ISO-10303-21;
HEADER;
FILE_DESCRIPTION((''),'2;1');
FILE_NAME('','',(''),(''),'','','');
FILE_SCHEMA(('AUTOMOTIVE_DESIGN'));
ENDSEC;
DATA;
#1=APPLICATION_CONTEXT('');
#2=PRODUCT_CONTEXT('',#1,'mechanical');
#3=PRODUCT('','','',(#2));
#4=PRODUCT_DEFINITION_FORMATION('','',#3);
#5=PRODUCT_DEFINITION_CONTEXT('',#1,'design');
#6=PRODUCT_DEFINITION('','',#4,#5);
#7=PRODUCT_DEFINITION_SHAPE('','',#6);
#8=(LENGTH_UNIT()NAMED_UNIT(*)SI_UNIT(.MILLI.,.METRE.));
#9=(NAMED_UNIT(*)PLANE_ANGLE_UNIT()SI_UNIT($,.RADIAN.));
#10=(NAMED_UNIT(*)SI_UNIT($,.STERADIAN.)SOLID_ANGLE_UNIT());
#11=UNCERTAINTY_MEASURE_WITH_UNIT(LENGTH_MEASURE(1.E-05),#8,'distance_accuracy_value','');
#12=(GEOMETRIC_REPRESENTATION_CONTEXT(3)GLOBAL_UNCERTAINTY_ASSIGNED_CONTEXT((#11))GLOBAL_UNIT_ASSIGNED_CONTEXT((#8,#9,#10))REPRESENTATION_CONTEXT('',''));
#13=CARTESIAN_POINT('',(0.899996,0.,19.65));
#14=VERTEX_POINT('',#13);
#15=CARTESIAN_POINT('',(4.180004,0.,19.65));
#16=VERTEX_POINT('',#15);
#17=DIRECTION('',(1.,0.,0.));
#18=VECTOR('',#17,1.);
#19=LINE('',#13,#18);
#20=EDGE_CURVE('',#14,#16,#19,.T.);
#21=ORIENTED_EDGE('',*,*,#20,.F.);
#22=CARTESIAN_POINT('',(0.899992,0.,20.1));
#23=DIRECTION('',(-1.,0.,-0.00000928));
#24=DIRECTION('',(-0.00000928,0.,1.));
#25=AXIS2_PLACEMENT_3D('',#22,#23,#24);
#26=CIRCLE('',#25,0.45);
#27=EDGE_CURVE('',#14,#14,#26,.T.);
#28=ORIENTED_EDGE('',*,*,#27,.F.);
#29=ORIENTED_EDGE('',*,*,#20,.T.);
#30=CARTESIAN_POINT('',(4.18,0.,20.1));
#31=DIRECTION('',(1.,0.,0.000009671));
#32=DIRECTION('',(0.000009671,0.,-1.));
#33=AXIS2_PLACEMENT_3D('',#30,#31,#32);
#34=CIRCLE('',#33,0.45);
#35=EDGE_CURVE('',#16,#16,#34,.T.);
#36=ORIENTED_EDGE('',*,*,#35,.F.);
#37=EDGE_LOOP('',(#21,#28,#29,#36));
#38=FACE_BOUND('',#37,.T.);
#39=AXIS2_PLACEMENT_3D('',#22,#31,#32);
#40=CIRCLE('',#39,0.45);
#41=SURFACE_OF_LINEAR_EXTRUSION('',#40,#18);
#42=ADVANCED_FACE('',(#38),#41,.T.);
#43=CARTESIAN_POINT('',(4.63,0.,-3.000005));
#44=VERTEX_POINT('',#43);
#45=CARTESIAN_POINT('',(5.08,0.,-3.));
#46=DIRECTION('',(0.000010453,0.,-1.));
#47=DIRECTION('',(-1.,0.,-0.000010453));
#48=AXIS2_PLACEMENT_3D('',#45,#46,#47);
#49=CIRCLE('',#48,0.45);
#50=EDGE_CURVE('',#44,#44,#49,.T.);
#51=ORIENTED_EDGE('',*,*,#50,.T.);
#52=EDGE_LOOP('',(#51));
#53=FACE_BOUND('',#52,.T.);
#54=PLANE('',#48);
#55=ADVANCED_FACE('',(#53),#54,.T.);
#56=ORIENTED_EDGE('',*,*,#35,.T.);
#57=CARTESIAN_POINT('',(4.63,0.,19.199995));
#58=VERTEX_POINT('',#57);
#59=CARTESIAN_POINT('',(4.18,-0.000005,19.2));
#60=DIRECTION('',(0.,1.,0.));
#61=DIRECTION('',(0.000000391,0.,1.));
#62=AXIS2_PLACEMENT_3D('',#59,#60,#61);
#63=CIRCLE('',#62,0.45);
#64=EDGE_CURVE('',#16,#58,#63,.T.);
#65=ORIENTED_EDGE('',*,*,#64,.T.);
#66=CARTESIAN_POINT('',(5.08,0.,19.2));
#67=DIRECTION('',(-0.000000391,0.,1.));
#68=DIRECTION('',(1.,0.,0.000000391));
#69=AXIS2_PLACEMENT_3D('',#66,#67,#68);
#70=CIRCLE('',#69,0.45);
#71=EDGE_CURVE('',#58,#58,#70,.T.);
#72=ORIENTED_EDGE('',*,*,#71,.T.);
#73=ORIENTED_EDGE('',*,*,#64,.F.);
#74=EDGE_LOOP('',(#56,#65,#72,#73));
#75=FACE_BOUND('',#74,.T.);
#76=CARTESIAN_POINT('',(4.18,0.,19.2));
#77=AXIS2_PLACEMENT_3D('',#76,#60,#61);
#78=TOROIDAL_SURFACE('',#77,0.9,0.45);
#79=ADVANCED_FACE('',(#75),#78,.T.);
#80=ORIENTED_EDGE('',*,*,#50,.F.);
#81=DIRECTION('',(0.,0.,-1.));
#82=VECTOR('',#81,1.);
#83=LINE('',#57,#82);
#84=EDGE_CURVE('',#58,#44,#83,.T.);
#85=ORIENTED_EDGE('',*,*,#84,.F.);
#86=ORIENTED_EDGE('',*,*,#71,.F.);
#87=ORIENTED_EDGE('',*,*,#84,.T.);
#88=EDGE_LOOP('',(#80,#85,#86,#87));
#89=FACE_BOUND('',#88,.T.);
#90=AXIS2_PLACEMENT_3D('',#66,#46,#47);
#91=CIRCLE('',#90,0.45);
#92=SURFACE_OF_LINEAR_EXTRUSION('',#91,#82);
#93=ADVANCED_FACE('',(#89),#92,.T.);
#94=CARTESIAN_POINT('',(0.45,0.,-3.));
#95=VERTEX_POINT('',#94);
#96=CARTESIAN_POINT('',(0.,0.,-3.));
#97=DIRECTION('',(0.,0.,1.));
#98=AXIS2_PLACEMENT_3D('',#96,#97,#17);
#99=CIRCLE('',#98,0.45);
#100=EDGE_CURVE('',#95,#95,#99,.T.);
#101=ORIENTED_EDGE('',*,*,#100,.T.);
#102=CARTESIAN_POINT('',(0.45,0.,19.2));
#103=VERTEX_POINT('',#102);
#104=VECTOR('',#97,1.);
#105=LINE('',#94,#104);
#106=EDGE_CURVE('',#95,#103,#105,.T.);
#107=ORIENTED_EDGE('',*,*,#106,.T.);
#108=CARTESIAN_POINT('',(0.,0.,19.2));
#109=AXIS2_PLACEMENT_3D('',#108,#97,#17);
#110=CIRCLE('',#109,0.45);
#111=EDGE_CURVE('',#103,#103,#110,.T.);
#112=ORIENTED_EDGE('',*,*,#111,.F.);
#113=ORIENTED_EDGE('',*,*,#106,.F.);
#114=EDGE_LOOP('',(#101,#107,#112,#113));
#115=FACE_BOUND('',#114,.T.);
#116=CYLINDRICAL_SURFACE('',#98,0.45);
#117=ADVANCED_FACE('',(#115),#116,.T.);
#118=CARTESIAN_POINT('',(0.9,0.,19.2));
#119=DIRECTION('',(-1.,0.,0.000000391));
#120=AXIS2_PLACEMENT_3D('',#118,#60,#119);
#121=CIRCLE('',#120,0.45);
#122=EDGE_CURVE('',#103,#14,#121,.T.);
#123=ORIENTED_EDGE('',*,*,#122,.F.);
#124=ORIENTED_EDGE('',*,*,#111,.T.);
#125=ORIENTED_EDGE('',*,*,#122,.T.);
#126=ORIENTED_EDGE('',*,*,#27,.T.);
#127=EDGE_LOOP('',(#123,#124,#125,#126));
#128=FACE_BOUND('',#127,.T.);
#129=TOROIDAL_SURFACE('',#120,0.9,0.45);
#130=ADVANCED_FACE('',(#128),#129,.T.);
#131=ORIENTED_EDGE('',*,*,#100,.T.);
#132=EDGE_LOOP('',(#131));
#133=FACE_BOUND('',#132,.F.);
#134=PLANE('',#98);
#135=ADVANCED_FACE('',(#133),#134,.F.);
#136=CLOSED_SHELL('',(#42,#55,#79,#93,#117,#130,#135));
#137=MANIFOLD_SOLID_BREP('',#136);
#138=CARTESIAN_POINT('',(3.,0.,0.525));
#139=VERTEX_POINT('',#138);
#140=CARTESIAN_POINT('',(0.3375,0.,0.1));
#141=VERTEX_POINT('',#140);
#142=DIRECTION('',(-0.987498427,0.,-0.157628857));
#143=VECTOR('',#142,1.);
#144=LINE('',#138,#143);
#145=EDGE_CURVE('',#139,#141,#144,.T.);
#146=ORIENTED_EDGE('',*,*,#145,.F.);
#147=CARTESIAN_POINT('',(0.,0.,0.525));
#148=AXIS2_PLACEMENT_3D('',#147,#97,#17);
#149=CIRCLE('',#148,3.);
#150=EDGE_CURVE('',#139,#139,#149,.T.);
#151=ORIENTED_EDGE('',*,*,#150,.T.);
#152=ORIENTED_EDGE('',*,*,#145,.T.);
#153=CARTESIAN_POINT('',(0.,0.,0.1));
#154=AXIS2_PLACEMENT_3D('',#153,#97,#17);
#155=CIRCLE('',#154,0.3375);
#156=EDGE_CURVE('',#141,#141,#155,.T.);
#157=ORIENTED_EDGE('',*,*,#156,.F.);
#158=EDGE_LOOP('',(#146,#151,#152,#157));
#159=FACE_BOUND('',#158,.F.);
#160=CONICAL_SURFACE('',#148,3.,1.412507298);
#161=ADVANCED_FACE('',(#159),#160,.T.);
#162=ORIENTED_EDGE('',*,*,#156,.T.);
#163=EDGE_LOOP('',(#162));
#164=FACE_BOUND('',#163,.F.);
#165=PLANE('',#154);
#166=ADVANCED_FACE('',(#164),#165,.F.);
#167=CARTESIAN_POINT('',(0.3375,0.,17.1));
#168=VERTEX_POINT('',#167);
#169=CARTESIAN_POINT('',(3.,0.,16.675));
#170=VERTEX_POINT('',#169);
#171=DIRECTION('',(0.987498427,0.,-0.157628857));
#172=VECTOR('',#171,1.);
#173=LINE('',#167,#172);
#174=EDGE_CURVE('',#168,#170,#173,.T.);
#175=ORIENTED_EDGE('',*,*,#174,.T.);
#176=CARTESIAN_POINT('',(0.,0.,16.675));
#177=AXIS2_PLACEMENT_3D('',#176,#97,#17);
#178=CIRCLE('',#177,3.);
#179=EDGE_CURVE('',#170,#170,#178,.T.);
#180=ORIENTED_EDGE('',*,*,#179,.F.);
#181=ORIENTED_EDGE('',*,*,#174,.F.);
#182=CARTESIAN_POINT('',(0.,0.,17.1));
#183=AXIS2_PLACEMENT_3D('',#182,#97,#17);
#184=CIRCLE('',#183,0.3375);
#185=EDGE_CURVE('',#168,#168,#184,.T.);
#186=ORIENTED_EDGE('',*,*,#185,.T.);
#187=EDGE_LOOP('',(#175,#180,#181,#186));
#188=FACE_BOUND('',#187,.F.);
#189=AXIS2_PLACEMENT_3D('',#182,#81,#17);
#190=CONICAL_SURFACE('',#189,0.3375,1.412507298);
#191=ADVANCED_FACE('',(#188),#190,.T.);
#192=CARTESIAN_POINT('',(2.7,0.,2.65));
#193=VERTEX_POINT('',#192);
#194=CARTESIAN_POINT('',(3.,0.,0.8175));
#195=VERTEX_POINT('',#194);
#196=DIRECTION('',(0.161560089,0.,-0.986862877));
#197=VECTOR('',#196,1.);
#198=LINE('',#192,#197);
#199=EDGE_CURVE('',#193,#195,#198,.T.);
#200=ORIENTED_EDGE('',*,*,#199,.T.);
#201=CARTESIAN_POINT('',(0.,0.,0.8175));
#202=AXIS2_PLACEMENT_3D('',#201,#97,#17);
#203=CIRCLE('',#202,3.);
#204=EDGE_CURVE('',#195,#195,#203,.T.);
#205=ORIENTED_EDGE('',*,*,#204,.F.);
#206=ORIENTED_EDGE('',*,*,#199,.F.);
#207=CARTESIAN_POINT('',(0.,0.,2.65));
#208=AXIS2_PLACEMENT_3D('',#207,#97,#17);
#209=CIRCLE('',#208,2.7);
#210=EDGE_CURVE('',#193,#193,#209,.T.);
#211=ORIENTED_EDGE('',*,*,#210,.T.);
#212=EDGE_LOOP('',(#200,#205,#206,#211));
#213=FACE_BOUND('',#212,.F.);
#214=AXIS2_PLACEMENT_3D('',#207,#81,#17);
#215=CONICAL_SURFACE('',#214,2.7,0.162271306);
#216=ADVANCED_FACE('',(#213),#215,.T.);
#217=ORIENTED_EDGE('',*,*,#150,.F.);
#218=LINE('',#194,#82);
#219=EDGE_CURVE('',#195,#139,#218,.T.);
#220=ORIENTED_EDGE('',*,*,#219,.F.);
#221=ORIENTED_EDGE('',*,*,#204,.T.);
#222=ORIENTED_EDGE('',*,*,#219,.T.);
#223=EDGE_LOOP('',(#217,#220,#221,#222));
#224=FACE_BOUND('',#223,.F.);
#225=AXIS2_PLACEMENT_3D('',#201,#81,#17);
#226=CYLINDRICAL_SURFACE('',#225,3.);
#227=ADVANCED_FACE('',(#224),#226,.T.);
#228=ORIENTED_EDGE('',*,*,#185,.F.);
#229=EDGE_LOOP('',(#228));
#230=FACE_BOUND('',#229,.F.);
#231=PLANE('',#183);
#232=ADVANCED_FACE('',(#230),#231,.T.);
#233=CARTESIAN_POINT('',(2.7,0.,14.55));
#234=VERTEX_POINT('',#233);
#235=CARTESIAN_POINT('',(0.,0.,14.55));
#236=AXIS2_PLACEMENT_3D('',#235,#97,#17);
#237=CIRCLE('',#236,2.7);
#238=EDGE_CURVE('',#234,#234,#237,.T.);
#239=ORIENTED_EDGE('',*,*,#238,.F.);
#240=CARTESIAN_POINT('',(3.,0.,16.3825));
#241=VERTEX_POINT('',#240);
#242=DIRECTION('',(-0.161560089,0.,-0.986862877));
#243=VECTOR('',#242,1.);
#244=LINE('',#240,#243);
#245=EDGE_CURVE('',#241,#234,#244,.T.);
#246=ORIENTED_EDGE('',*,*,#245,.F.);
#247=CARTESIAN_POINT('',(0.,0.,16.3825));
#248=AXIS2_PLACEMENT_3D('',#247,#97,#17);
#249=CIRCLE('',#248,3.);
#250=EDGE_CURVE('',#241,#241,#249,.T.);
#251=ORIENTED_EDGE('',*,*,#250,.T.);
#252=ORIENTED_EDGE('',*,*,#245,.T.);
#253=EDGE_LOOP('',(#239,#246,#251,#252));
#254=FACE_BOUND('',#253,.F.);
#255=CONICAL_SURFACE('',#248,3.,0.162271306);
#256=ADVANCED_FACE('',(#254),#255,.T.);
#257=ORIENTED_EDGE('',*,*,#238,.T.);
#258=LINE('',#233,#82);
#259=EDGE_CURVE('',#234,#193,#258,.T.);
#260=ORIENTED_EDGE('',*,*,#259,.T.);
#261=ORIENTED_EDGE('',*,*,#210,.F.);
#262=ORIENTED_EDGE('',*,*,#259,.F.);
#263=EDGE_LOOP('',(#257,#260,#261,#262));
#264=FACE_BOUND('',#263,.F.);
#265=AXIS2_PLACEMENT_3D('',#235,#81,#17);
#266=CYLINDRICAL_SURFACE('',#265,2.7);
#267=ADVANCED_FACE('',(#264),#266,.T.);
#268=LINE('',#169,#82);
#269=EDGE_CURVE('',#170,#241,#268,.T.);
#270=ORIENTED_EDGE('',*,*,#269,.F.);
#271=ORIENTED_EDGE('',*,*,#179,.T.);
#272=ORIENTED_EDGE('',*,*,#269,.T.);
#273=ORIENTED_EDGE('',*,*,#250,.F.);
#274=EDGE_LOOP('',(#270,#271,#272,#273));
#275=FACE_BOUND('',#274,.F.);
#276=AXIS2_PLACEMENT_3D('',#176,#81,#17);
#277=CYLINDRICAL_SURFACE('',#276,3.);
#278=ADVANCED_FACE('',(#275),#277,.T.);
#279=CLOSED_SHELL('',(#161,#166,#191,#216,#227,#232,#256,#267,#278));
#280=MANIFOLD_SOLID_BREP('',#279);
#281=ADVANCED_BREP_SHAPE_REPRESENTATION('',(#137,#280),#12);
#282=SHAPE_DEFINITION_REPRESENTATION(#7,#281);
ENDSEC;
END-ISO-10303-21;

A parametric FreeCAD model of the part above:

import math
import FreeCAD as App
import Part
import Sketcher
from FreeCAD import Vector

doc = App.newDocument("Part")
body = doc.addObject("PartDesign::Body", "Body")

sketch1 = body.newObject("Sketcher::SketchObject", "Sketch")
sketch1.AttachmentSupport = (doc.getObject("XY_Plane"), [""])
sketch1.MapMode = "FlatFace"
sketch1.AttachmentOffset = App.Placement(Vector(0, 0, -2), App.Rotation())
sketch1.addGeometry(Part.Circle(Vector(0, 0, 0), Vector(0, 0, 1), 0.45), False)
sketch1.addConstraint(Sketcher.Constraint("Coincident", 0, 3, -1, 1))
sketch1.addConstraint(Sketcher.Constraint("Diameter", 0, 0.9))

sketch2 = body.newObject("Sketcher::SketchObject", "Sketch001")
sketch2.AttachmentSupport = (doc.getObject("XZ_Plane"), [""])
sketch2.MapMode = "FlatFace"
sketch2.addGeometry(Part.LineSegment(Vector(0, -3, 0), Vector(0, 19.2, 0)), False)
sketch2.addGeometry(Part.ArcOfCircle(Part.Circle(Vector(0.9, 19.2, 0), Vector(0, 0, 1), 0.9), math.radians(90), math.radians(180)), False)
sketch2.addGeometry(Part.LineSegment(Vector(0.9, 20.1, 0), Vector(4.2, 20.1, 0)), False)
sketch2.addGeometry(Part.ArcOfCircle(Part.Circle(Vector(4.2, 19.2, 0), Vector(0, 0, 1), 0.9), math.radians(0), math.radians(90)), False)
sketch2.addGeometry(Part.LineSegment(Vector(5.1, 19.2, 0), Vector(5.1, -3, 0)), False)
sketch2.addConstraint(Sketcher.Constraint("Tangent", 0, 2, 1, 2))
sketch2.addConstraint(Sketcher.Constraint("Coincident", 1, 1, 2, 1))
sketch2.addConstraint(Sketcher.Constraint("Tangent", 2, 2, 3, 2))
sketch2.addConstraint(Sketcher.Constraint("Tangent", 3, 1, 4, 1))
sketch2.addConstraint(Sketcher.Constraint("Vertical", 0))
sketch2.addConstraint(Sketcher.Constraint("Horizontal", 2))
sketch2.addConstraint(Sketcher.Constraint("Vertical", 4))
sketch2.addConstraint(Sketcher.Constraint("Equal", 1, 3))
sketch2.addConstraint(Sketcher.Constraint("PointOnObject", 0, 1, -2))
sketch2.addConstraint(Sketcher.Constraint("Horizontal", 0, 1, 4, 2))
sketch2.addConstraint(Sketcher.Constraint("Radius", 1, 0.9))
sketch2.addConstraint(Sketcher.Constraint("DistanceY", 0, 1, 0, 2, 22.2))
sketch2.addConstraint(Sketcher.Constraint("DistanceY", 0, 1, -1, 1, 3.0))
sketch2.addConstraint(Sketcher.Constraint("DistanceX", -1, 1, 3, 3, 4.18))
sketch2.addConstraint(Sketcher.Constraint("DistanceX", 2, 1, 2, 2, 3.280008))
doc.recompute()

additivepipe = body.newObject("PartDesign::AdditivePipe", "AdditivePipe")
additivepipe.Profile = sketch1
additivepipe.Spine = (sketch2, ["Edge1", "Edge2", "Edge3", "Edge4", "Edge5"])
body2 = doc.addObject("PartDesign::Body", "Body001")

sketch3 = body2.newObject("Sketcher::SketchObject", "Sketch002")
sketch3.AttachmentSupport = (doc.getObject("XZ_Plane001"), [""])
sketch3.MapMode = "FlatFace"
sketch3.addGeometry(Part.LineSegment(Vector(0, 17.1, 0), Vector(0, 0.1, 0)), False)
sketch3.addGeometry(Part.LineSegment(Vector(0, 0.1, 0), Vector(0.34, 0.1, 0)), False)
sketch3.addGeometry(Part.LineSegment(Vector(0.34, 0.1, 0), Vector(3, 0.53, 0)), False)
sketch3.addGeometry(Part.LineSegment(Vector(3, 0.53, 0), Vector(3, 0.82, 0)), False)
sketch3.addGeometry(Part.LineSegment(Vector(3, 0.82, 0), Vector(2.7, 2.65, 0)), False)
sketch3.addGeometry(Part.LineSegment(Vector(2.7, 2.65, 0), Vector(2.7, 14.55, 0)), False)
sketch3.addGeometry(Part.LineSegment(Vector(2.7, 14.55, 0), Vector(3, 16.38, 0)), False)
sketch3.addGeometry(Part.LineSegment(Vector(3, 16.38, 0), Vector(3, 16.68, 0)), False)
sketch3.addGeometry(Part.LineSegment(Vector(3, 16.68, 0), Vector(0.34, 17.1, 0)), False)
sketch3.addGeometry(Part.LineSegment(Vector(0.34, 17.1, 0), Vector(0, 17.1, 0)), False)
sketch3.addConstraint(Sketcher.Constraint("Coincident", 0, 2, 1, 1))
sketch3.addConstraint(Sketcher.Constraint("Coincident", 1, 2, 2, 1))
sketch3.addConstraint(Sketcher.Constraint("Coincident", 2, 2, 3, 1))
sketch3.addConstraint(Sketcher.Constraint("Coincident", 3, 2, 4, 1))
sketch3.addConstraint(Sketcher.Constraint("Coincident", 4, 2, 5, 1))
sketch3.addConstraint(Sketcher.Constraint("Coincident", 5, 2, 6, 1))
sketch3.addConstraint(Sketcher.Constraint("Coincident", 6, 2, 7, 1))
sketch3.addConstraint(Sketcher.Constraint("Coincident", 7, 2, 8, 1))
sketch3.addConstraint(Sketcher.Constraint("Coincident", 8, 2, 9, 1))
sketch3.addConstraint(Sketcher.Constraint("Coincident", 9, 2, 0, 1))
sketch3.addConstraint(Sketcher.Constraint("Vertical", 0))
sketch3.addConstraint(Sketcher.Constraint("Horizontal", 1))
sketch3.addConstraint(Sketcher.Constraint("Vertical", 3))
sketch3.addConstraint(Sketcher.Constraint("Vertical", 5))
sketch3.addConstraint(Sketcher.Constraint("Vertical", 7))
sketch3.addConstraint(Sketcher.Constraint("Horizontal", 9))
sketch3.addConstraint(Sketcher.Constraint("PointOnObject", 0, 2, -2))
sketch3.addConstraint(Sketcher.Constraint("Vertical", 3, 2, 6, 2))
sketch3.addConstraint(Sketcher.Constraint("Vertical", 1, 2, 8, 2))
sketch3.addConstraint(Sketcher.Constraint("Equal", 3, 7))
sketch3.addConstraint(Sketcher.Constraint("Equal", 4, 6))
sketch3.addConstraint(Sketcher.Constraint("Equal", 2, 8))
sketch3.addConstraint(Sketcher.Constraint("DistanceY", 0, 2, 0, 1, 17.0))
sketch3.addConstraint(Sketcher.Constraint("DistanceY", 5, 1, 5, 2, 11.9))
sketch3.addConstraint(Sketcher.Constraint("DistanceX", -1, 1, 2, 2, 3.0))
sketch3.addConstraint(Sketcher.Constraint("DistanceY", -1, 1, 0, 2, 0.1))
sketch3.addConstraint(Sketcher.Constraint("DistanceX", -1, 1, 4, 2, 2.7))
sketch3.addConstraint(Sketcher.Constraint("DistanceY", 2, 2, 7, 2, 16.15))
sketch3.addConstraint(Sketcher.Constraint("DistanceX", 1, 1, 1, 2, 0.3375))
sketch3.addConstraint(Sketcher.Constraint("DistanceY", 3, 1, 3, 2, 0.2925))
revolution = body2.newObject("PartDesign::Revolution", "Revolution")
revolution.Profile = sketch3
revolution.ReferenceAxis = (sketch3, ["V_Axis"])
revolution.Angle = 360

doc.recompute()
